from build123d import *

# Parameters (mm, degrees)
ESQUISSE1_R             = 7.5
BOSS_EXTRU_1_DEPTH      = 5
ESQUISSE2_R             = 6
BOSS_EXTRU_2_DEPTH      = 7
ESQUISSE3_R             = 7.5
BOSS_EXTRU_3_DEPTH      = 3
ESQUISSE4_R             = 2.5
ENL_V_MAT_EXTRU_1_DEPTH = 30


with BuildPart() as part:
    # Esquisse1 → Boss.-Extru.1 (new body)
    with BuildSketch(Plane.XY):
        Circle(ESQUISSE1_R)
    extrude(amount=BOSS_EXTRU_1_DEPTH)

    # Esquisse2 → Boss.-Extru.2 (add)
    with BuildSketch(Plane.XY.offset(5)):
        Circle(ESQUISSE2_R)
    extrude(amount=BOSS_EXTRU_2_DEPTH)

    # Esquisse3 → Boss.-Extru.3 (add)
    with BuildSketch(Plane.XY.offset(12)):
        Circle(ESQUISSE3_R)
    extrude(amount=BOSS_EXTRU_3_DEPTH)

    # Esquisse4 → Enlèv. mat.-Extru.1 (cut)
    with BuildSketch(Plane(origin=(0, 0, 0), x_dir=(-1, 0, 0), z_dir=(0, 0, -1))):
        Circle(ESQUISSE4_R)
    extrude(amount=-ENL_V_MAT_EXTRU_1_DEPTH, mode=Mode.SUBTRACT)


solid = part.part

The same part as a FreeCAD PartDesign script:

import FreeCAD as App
import Part
import Sketcher

V = App.Vector
Q = App.Units.Quantity

doc = App.newDocument("Part")
body = doc.addObject("PartDesign::Body", "Body")

# Sketch on XY plane
sketch1 = body.newObject("Sketcher::SketchObject", "Sketch")
sketch1.AttachmentSupport = (doc.getObject("XY_Plane"), [""])
sketch1.MapMode = "FlatFace"
sketch1.addGeometry(Part.Circle(V(0, 0, 0), V(0, 0, 1), 8), False)
sketch1.addConstraint([
    Sketcher.Constraint("Coincident", 0, 3, -1, 1),
    Sketcher.Constraint("Diameter", 0, Q("15 mm")),
])
pad1 = body.newObject("PartDesign::Pad", "Pad")
pad1.Profile = sketch1
pad1.Length = 5

# Sketch on XY plane
sketch2 = body.newObject("Sketcher::SketchObject", "Sketch001")
sketch2.AttachmentSupport = (doc.getObject("XY_Plane"), [""])
sketch2.MapMode = "FlatFace"
sketch2.AttachmentOffset = App.Placement(V(0, 0, 5), App.Rotation())
sketch2.addGeometry(Part.Circle(V(0, 0, 0), V(0, 0, 1), 6), False)
sketch2.addConstraint([
    Sketcher.Constraint("Coincident", 0, 3, -1, 1),
    Sketcher.Constraint("Diameter", 0, Q("12 mm")),
])
pad2 = body.newObject("PartDesign::Pad", "Pad001")
pad2.Profile = sketch2
pad2.Length = 7

# Sketch on XY plane
sketch3 = body.newObject("Sketcher::SketchObject", "Sketch002")
sketch3.AttachmentSupport = (doc.getObject("XY_Plane"), [""])
sketch3.MapMode = "FlatFace"
sketch3.AttachmentOffset = App.Placement(V(0, 0, 12), App.Rotation())
sketch3.addGeometry(Part.Circle(V(0, 0, 0), V(0, 0, 1), 8), False)
sketch3.addConstraint([
    Sketcher.Constraint("Coincident", 0, 3, -1, 1),
    Sketcher.Constraint("Diameter", 0, Q("15 mm")),
])
pad3 = body.newObject("PartDesign::Pad", "Pad002")
pad3.Profile = sketch3
pad3.Length = 3

# Sketch on XY plane
sketch4 = body.newObject("Sketcher::SketchObject", "Sketch003")
sketch4.AttachmentSupport = (doc.getObject("XY_Plane"), [""])
sketch4.MapMode = "FlatFace"
sketch4.addGeometry(Part.Circle(V(0, 0, 0), V(0, 0, 1), 2.5), False)
sketch4.addConstraint([
    Sketcher.Constraint("Coincident", 0, 3, -1, 1),
    Sketcher.Constraint("Diameter", 0, Q("5 mm")),
])
pocket1 = body.newObject("PartDesign::Pocket", "Pocket")
pocket1.Profile = sketch4
pocket1.Length = 30
pocket1.Reversed = True

doc.recompute()
